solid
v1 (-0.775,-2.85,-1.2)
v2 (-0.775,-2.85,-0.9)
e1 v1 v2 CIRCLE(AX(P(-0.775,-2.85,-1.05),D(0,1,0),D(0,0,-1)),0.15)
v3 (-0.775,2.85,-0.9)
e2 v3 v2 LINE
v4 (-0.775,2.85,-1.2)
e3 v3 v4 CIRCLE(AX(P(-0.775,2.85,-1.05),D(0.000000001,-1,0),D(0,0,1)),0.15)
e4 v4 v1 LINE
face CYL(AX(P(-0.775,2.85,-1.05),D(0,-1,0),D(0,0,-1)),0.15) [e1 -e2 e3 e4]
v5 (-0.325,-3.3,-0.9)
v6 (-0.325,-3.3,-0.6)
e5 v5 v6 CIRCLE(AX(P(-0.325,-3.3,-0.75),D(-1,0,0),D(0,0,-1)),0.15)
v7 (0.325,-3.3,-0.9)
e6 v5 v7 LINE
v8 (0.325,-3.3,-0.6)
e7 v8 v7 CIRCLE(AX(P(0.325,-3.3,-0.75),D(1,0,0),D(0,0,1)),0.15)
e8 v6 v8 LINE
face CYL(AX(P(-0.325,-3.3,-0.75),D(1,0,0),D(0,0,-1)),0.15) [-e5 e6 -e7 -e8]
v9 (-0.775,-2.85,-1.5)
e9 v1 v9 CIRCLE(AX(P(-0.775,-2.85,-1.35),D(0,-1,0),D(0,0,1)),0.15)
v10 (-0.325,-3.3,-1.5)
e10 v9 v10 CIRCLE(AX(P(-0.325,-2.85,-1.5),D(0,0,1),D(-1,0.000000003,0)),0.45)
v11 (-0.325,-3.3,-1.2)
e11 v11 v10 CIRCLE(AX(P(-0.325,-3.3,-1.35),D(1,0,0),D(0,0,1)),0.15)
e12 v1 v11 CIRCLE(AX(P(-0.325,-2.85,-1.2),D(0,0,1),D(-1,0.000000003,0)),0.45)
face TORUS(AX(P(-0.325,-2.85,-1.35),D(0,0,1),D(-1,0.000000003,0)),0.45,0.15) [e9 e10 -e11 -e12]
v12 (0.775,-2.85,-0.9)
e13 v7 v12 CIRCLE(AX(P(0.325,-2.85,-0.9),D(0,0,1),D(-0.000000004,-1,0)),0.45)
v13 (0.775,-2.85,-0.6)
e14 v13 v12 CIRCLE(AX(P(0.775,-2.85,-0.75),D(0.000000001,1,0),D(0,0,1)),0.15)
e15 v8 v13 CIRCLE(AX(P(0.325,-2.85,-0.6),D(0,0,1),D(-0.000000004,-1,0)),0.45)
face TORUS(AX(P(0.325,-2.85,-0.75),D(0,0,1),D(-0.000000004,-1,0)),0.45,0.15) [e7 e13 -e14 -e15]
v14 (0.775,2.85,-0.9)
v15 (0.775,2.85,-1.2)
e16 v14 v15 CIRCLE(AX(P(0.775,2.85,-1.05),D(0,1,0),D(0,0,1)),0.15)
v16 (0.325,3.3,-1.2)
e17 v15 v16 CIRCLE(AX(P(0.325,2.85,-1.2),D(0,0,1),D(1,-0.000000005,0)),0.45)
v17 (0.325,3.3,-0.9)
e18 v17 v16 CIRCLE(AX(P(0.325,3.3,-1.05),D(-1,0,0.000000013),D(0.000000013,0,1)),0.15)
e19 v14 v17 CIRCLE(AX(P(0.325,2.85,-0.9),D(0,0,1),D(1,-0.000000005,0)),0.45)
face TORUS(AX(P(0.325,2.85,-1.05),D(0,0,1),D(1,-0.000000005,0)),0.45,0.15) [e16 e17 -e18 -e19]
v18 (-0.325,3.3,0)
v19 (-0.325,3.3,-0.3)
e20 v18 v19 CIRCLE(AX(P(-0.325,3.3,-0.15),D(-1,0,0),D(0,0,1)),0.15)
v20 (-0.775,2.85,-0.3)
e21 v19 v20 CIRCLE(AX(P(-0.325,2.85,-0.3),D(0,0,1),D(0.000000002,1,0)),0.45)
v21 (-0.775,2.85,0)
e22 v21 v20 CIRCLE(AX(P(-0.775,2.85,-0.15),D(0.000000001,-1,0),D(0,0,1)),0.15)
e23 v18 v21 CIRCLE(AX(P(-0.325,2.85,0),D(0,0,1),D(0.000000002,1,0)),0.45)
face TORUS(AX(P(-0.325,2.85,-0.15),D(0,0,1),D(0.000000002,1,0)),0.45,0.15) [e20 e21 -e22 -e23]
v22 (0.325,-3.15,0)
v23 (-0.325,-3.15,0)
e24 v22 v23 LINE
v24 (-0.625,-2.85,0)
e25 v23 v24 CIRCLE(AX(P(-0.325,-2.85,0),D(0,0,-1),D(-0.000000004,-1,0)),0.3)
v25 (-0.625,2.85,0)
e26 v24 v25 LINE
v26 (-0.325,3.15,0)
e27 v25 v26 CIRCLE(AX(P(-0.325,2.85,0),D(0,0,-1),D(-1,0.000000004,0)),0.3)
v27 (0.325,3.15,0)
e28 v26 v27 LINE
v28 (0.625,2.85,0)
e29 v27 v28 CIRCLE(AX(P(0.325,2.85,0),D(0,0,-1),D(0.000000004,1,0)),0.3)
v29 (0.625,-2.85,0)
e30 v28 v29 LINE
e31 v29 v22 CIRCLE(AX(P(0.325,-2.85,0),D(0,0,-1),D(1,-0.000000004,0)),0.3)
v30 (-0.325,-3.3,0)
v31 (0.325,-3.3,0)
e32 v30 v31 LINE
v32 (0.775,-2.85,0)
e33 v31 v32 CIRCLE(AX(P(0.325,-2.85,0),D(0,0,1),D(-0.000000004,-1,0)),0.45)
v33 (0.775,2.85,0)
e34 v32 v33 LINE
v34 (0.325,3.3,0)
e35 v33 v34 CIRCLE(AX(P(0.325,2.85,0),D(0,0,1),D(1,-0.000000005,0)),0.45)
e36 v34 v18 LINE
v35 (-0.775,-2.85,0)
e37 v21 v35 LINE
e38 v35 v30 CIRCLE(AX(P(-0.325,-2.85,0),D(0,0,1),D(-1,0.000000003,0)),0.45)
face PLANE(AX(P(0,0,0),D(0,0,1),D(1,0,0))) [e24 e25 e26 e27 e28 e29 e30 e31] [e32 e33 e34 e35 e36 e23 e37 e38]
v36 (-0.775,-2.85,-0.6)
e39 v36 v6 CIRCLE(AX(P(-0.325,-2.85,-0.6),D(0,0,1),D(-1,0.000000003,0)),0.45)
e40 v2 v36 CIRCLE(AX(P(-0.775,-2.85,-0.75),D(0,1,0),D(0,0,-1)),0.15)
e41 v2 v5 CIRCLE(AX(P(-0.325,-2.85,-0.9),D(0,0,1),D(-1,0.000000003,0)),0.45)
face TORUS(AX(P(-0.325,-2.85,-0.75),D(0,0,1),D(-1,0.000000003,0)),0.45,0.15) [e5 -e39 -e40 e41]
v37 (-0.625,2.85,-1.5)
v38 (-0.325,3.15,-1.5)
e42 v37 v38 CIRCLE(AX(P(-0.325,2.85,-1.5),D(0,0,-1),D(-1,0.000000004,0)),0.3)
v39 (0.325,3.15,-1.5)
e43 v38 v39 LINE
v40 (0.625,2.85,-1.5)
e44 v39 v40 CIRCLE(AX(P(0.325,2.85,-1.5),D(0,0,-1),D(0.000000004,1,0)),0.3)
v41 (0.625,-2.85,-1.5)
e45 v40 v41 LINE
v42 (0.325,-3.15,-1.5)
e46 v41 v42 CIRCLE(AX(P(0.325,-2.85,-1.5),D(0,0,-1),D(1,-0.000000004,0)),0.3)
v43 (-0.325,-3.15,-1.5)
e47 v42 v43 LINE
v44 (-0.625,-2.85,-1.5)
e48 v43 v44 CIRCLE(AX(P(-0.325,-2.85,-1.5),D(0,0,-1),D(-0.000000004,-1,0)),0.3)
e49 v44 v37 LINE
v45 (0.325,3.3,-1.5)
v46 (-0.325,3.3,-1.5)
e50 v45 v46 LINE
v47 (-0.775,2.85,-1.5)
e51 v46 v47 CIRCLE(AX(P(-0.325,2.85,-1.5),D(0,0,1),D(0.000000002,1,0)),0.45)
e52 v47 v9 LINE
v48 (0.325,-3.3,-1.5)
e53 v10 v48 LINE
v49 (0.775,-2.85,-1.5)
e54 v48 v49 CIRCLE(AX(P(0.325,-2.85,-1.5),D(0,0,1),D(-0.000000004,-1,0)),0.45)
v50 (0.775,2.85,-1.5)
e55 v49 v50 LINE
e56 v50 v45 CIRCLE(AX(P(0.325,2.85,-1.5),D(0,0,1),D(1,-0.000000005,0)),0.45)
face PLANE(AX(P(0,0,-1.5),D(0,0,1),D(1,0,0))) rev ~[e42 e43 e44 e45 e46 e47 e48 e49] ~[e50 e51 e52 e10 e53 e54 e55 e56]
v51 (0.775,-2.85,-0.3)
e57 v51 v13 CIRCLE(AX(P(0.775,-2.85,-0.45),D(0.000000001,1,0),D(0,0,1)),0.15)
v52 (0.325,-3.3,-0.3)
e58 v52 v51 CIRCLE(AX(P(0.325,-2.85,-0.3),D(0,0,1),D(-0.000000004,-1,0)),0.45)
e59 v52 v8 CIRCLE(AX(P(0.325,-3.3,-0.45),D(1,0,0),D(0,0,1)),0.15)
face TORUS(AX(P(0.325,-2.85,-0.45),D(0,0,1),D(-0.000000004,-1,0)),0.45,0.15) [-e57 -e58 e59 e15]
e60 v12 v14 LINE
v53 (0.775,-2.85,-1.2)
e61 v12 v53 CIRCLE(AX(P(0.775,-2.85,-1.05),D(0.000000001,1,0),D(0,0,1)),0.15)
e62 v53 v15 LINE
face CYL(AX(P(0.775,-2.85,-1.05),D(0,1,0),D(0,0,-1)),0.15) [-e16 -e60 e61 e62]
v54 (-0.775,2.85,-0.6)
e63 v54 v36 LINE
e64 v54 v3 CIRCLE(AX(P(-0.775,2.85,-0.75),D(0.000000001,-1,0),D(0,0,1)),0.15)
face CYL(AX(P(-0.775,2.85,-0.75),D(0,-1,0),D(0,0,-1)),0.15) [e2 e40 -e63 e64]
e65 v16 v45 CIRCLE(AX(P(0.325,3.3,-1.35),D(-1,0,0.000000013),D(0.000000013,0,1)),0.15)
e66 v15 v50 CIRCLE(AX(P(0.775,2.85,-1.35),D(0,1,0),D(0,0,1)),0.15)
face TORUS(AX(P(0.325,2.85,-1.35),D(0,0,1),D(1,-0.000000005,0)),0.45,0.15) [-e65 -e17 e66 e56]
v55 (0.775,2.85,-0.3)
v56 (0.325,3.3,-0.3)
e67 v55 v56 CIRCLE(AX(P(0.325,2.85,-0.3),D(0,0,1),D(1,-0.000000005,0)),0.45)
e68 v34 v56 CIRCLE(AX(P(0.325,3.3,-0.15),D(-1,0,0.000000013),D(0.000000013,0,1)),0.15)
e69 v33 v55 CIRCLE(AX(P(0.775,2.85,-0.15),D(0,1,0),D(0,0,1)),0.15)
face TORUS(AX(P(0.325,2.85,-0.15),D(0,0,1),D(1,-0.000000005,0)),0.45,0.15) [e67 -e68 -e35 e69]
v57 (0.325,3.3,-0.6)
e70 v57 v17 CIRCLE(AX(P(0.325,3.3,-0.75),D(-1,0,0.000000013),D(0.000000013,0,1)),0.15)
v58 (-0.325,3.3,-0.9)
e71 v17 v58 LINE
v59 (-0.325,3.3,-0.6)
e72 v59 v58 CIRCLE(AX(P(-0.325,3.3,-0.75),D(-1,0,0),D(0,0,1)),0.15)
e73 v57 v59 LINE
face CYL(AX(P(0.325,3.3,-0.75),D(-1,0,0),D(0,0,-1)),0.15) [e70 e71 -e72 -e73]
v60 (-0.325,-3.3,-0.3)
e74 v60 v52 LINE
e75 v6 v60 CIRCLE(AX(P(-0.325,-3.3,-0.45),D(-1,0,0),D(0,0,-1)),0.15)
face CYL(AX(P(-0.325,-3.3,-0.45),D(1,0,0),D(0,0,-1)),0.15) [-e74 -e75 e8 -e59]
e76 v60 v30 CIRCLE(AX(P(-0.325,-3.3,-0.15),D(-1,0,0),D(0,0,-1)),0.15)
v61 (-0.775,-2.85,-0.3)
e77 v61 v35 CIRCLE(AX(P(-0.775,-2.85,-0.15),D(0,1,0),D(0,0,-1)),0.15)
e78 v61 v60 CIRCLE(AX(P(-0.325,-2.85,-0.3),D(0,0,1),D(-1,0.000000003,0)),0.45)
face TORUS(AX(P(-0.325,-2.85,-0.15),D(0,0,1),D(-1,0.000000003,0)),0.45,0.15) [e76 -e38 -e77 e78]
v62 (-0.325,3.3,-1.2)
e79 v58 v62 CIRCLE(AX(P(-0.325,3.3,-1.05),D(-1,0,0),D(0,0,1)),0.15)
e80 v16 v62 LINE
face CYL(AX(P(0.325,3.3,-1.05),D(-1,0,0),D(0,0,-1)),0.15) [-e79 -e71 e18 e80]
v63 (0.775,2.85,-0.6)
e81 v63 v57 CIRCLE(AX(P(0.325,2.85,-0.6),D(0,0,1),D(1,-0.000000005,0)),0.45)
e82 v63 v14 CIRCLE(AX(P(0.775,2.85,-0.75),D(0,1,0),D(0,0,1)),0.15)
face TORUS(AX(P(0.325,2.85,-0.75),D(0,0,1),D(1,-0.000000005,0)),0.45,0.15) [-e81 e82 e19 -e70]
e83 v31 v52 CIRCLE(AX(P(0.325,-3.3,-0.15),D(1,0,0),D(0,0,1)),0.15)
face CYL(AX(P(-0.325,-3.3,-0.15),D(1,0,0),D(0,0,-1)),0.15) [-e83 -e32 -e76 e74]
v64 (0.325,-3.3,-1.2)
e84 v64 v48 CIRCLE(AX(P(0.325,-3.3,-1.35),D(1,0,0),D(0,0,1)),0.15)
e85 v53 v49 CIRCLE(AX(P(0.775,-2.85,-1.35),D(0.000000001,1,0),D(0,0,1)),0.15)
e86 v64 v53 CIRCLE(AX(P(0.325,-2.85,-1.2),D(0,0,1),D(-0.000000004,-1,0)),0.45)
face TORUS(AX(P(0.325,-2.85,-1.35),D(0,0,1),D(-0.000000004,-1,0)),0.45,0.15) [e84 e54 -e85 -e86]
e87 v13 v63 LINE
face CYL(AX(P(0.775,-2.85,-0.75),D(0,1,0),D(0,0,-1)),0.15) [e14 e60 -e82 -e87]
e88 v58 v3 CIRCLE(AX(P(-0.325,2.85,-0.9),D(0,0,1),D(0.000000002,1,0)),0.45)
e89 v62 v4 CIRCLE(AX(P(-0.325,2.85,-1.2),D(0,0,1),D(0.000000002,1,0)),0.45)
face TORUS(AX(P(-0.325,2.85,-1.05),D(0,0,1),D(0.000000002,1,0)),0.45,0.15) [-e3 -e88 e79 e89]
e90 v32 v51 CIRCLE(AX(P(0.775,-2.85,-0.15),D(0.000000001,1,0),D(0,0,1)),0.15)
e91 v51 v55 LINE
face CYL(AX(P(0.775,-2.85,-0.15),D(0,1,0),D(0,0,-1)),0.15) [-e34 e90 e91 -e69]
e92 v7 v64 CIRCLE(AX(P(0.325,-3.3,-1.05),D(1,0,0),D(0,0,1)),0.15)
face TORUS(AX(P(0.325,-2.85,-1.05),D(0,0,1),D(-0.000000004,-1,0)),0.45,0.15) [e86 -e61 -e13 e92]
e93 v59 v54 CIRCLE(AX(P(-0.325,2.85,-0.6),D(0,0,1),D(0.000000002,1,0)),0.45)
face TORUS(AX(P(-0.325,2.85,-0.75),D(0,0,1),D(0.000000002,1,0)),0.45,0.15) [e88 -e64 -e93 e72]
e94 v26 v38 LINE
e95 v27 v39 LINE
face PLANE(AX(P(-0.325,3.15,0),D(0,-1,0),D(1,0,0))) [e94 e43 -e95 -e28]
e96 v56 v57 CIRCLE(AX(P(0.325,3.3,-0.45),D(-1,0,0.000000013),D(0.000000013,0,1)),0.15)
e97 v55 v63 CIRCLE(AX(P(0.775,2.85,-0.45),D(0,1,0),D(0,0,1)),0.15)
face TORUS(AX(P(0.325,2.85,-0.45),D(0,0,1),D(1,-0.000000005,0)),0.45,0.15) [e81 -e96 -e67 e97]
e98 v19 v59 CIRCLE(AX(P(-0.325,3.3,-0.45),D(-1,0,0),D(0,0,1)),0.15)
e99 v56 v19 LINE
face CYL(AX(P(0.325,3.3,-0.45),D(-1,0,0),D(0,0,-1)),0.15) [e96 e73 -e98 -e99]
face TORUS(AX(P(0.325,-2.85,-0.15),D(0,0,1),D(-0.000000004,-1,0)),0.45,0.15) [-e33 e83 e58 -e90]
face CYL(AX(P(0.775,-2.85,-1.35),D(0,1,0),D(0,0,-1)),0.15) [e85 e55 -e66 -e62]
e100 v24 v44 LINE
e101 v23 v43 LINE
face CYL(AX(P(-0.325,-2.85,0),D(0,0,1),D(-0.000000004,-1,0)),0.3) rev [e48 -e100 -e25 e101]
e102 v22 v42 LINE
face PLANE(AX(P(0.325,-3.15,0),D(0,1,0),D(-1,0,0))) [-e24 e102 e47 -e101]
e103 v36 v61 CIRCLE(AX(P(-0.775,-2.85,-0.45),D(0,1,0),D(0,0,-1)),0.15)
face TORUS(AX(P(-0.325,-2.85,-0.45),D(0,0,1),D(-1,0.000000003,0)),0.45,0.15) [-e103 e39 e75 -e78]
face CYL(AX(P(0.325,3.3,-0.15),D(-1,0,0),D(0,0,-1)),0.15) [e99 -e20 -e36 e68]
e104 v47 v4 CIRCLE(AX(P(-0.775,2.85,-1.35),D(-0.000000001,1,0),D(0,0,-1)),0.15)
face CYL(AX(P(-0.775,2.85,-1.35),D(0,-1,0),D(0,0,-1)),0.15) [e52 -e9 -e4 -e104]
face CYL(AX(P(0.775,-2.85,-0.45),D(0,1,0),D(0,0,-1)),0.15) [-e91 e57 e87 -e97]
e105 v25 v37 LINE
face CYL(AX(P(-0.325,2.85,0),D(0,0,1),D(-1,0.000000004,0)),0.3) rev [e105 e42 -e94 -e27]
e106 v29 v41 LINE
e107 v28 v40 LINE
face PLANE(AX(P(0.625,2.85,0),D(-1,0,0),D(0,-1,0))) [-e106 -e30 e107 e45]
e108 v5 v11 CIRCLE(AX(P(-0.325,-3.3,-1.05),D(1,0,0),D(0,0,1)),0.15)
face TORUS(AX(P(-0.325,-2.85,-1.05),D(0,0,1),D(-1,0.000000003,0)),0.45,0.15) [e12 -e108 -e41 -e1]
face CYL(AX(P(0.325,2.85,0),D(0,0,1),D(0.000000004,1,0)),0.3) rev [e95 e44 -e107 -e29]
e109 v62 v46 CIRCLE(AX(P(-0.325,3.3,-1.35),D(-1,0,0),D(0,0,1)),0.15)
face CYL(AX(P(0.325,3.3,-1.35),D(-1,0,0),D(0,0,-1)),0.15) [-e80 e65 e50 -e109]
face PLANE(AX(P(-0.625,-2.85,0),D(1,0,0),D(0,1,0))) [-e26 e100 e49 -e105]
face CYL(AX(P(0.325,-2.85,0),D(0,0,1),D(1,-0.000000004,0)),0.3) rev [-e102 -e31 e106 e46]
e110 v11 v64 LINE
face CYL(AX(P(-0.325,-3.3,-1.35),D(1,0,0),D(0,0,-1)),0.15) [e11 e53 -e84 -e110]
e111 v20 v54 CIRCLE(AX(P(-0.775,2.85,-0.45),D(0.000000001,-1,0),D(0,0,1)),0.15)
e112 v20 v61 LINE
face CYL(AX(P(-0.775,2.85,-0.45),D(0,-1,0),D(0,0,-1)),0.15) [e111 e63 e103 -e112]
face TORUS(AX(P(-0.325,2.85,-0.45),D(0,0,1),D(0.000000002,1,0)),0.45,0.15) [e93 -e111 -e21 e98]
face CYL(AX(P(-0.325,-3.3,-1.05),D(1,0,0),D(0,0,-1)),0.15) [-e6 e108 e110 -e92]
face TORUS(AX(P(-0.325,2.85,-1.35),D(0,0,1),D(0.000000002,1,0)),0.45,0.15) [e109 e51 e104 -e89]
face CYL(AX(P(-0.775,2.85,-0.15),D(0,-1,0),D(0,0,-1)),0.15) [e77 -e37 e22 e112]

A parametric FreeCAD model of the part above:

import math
import FreeCAD as App
import Part
import Sketcher
Q = App.Units.Quantity

doc = App.newDocument("Part")
body = doc.addObject("PartDesign::Body", "Body")

# Sketch on XY plane
sketch1 = body.newObject("Sketcher::SketchObject", "Sketch")
sketch1.AttachmentSupport = (doc.getObject("XY_Plane"), [""])
sketch1.MapMode = "FlatFace"
sketch1.addGeometry([
    Part.LineSegment(App.Vector(-0.93, 2.85, 0), App.Vector(-0.93, -2.85, 0)),  # 0
    Part.ArcOfCircle(Part.Circle(App.Vector(-0.33, -2.85, 0), App.Vector(0, 0, 1), 0.6), math.radians(180), math.radians(270)),  # 1
    Part.LineSegment(App.Vector(-0.33, -3.45, 0), App.Vector(0.33, -3.45, 0)),  # 2
    Part.ArcOfCircle(Part.Circle(App.Vector(0.33, -2.85, 0), App.Vector(0, 0, 1), 0.6), math.radians(-90), math.radians(0)),  # 3
    Part.LineSegment(App.Vector(0.93, -2.85, 0), App.Vector(0.93, 2.85, 0)),  # 4
    Part.ArcOfCircle(Part.Circle(App.Vector(0.33, 2.85, 0), App.Vector(0, 0, 1), 0.6), math.radians(0), math.radians(90)),  # 5
    Part.LineSegment(App.Vector(0.33, 3.45, 0), App.Vector(-0.33, 3.45, 0)),  # 6
    Part.ArcOfCircle(Part.Circle(App.Vector(-0.33, 2.85, 0), App.Vector(0, 0, 1), 0.6), math.radians(90), math.radians(180)),  # 7
    Part.ArcOfCircle(Part.Circle(App.Vector(-0.32, 2.85, 0), App.Vector(0, 0, 1), 0.3), math.radians(90), math.radians(180)),  # 8
    Part.LineSegment(App.Vector(-0.33, 3.15, 0), App.Vector(0.33, 3.15, 0)),  # 9
    Part.ArcOfCircle(Part.Circle(App.Vector(0.32, 2.85, 0), App.Vector(0, 0, 1), 0.3), math.radians(0), math.radians(90)),  # 10
    Part.LineSegment(App.Vector(0.62, 2.85, 0), App.Vector(0.62, -2.85, 0)),  # 11
    Part.ArcOfCircle(Part.Circle(App.Vector(0.32, -2.85, 0), App.Vector(0, 0, 1), 0.3), math.radians(-90), math.radians(0)),  # 12
    Part.LineSegment(App.Vector(0.33, -3.15, 0), App.Vector(-0.33, -3.15, 0)),  # 13
    Part.ArcOfCircle(Part.Circle(App.Vector(-0.32, -2.85, 0), App.Vector(0, 0, 1), 0.3), math.radians(-180), math.radians(-90)),  # 14
    Part.LineSegment(App.Vector(-0.62, -2.85, 0), App.Vector(-0.62, 2.85, 0)),  # 15
], False)
sketch1.addConstraint([
    Sketcher.Constraint("Tangent", 0, 2, 1, 1),
    Sketcher.Constraint("Tangent", 1, 2, 2, 1),
    Sketcher.Constraint("Tangent", 2, 2, 3, 1),
    Sketcher.Constraint("Tangent", 3, 2, 4, 1),
    Sketcher.Constraint("Tangent", 4, 2, 5, 1),
    Sketcher.Constraint("Tangent", 5, 2, 6, 1),
    Sketcher.Constraint("Tangent", 6, 2, 7, 1),
    Sketcher.Constraint("Tangent", 7, 2, 0, 1),
    Sketcher.Constraint("Tangent", 8, 1, 9, 1),
    Sketcher.Constraint("Tangent", 9, 2, 10, 2),
    Sketcher.Constraint("Tangent", 10, 1, 11, 1),
    Sketcher.Constraint("Tangent", 11, 2, 12, 2),
    Sketcher.Constraint("Tangent", 12, 1, 13, 1),
    Sketcher.Constraint("Tangent", 13, 2, 14, 2),
    Sketcher.Constraint("Tangent", 14, 1, 15, 1),
    Sketcher.Constraint("Tangent", 15, 2, 8, 2),
    Sketcher.Constraint("Vertical", 0),
    Sketcher.Constraint("Horizontal", 2),
    Sketcher.Constraint("Vertical", 4),
    Sketcher.Constraint("Horizontal", 6),
    Sketcher.Constraint("Horizontal", 9),
    Sketcher.Constraint("Vertical", 11),
    Sketcher.Constraint("Horizontal", 13),
    Sketcher.Constraint("Vertical", 15),
    Sketcher.Constraint("Coincident", 8, 3, 7, 3),
    Sketcher.Constraint("Coincident", 10, 3, 5, 3),
    Sketcher.Constraint("Coincident", 12, 3, 3, 3),
    Sketcher.Constraint("Equal", 1, 3),
    Sketcher.Constraint("Equal", 3, 5),
    Sketcher.Constraint("Equal", 5, 7),
    Sketcher.Constraint("Equal", 12, 14),
    Sketcher.Constraint("Symmetric", 1, 3, 5, 3, -1, 1),
    Sketcher.Constraint("Radius", 1, Q("0.6 mm")),
    Sketcher.Constraint("Radius", 8, Q("0.3 mm")),
    Sketcher.Constraint("DistanceY", 0, 2, 0, 1, Q("5.7 mm")),
    Sketcher.Constraint("DistanceX", 2, 1, 2, 2, Q("0.65 mm")),
])
pad1 = body.newObject("PartDesign::Pad", "Pad")
pad1.Profile = sketch1
pad1.Length = 1.5
pad1.Reversed = True

# Sketch on YZ plane
sketch2 = body.newObject("Sketcher::SketchObject", "Sketch001")
sketch2.AttachmentSupport = (doc.getObject("YZ_Plane"), [""])
sketch2.MapMode = "FlatFace"
sketch2.addGeometry([
    Part.ArcOfCircle(Part.Circle(App.Vector(3.3, -0.15, 0), App.Vector(0, 0, 1), 0.15), math.radians(-90), math.radians(90)),
    Part.LineSegment(App.Vector(3.3, -0.3, 0), App.Vector(3.95, -0.3, 0)),
    Part.LineSegment(App.Vector(3.95, -0.3, 0), App.Vector(3.95, 0, 0)),
    Part.LineSegment(App.Vector(3.95, 0, 0), App.Vector(3.3, 0, 0)),
], False)
sketch2.addConstraint([
    Sketcher.Constraint("Tangent", 0, 1, 1, 1),
    Sketcher.Constraint("Coincident", 1, 2, 2, 1),
    Sketcher.Constraint("Coincident", 2, 2, 3, 1),
    Sketcher.Constraint("Tangent", 3, 2, 0, 2),
    Sketcher.Constraint("Horizontal", 1),
    Sketcher.Constraint("Vertical", 2),
    Sketcher.Constraint("Horizontal", 3),
    Sketcher.Constraint("PointOnObject", 2, 2, -1),
    Sketcher.Constraint("Radius", 0, Q("0.15 mm")),
    Sketcher.Constraint("DistanceX", 1, 1, 1, 2, Q("0.65 mm")),
    Sketcher.Constraint("DistanceX", -1, 1, 0, 3, Q("3.3 mm")),
])

# Sketch on XY plane
sketch3 = body.newObject("Sketcher::SketchObject", "Sketch002")
sketch3.AttachmentSupport = (doc.getObject("XY_Plane"), [""])
sketch3.MapMode = "FlatFace"
sketch3.addGeometry([
    Part.LineSegment(App.Vector(0.3, 3.5, 0), App.Vector(-0.3, 3.5, 0)),  # 0
    Part.ArcOfCircle(Part.Circle(App.Vector(-0.3, 2.9, 0), App.Vector(0, 0, 1), 0.6), math.radians(90), math.radians(180)),  # 1
    Part.LineSegment(App.Vector(-0.9, 2.9, 0), App.Vector(-0.9, -2.9, 0)),  # 2
    Part.ArcOfCircle(Part.Circle(App.Vector(-0.3, -2.9, 0), App.Vector(0, 0, 1), 0.6), math.radians(180), math.radians(270)),  # 3
    Part.LineSegment(App.Vector(-0.3, -3.5, 0), App.Vector(0.3, -3.5, 0)),  # 4
    Part.ArcOfCircle(Part.Circle(App.Vector(0.3, -2.9, 0), App.Vector(0, 0, 1), 0.6), math.radians(-90), math.radians(0)),  # 5
    Part.LineSegment(App.Vector(0.9, -2.9, 0), App.Vector(0.9, 2.9, 0)),  # 6
    Part.ArcOfCircle(Part.Circle(App.Vector(0.3, 2.9, 0), App.Vector(0, 0, 1), 0.6), math.radians(0), math.radians(90)),  # 7
], False)
sketch3.addConstraint([
    Sketcher.Constraint("Tangent", 0, 2, 1, 1),
    Sketcher.Constraint("Tangent", 1, 2, 2, 1),
    Sketcher.Constraint("Tangent", 2, 2, 3, 1),
    Sketcher.Constraint("Tangent", 3, 2, 4, 1),
    Sketcher.Constraint("Tangent", 4, 2, 5, 1),
    Sketcher.Constraint("Tangent", 5, 2, 6, 1),
    Sketcher.Constraint("Tangent", 6, 2, 7, 1),
    Sketcher.Constraint("Tangent", 7, 2, 0, 1),
    Sketcher.Constraint("Horizontal", 0),
    Sketcher.Constraint("Vertical", 2),
    Sketcher.Constraint("Horizontal", 4),
    Sketcher.Constraint("Vertical", 6),
    Sketcher.Constraint("Equal", 1, 3),
    Sketcher.Constraint("Equal", 3, 5),
    Sketcher.Constraint("Equal", 5, 7),
    Sketcher.Constraint("Symmetric", 1, 3, 5, 3, -1, 1),
    Sketcher.Constraint("Radius", 1, Q("0.6 mm")),
    Sketcher.Constraint("DistanceY", 2, 2, 2, 1, Q("5.7 mm")),
    Sketcher.Constraint("DistanceX", 0, 2, 0, 1, Q("0.65 mm")),
])
doc.recompute()

subtractivepipe = body.newObject("PartDesign::SubtractivePipe", "SubtractivePipe")
subtractivepipe.Profile = sketch2
subtractivepipe.Spine = (sketch3, ["Edge1", "Edge2", "Edge3", "Edge4", "Edge5", "Edge6", "Edge7", "Edge8"])
doc.recompute()

linearpattern = body.newObject("PartDesign::LinearPattern", "LinearPattern")
linearpattern.Originals = [subtractivepipe]
linearpattern.Direction = (doc.getObject("Z_Axis"), [""])
linearpattern.Mode = "offset"
linearpattern.Offset = 0.3
linearpattern.Occurrences = 5
linearpattern.Reversed = True
body.Tip = linearpattern

doc.recompute()
